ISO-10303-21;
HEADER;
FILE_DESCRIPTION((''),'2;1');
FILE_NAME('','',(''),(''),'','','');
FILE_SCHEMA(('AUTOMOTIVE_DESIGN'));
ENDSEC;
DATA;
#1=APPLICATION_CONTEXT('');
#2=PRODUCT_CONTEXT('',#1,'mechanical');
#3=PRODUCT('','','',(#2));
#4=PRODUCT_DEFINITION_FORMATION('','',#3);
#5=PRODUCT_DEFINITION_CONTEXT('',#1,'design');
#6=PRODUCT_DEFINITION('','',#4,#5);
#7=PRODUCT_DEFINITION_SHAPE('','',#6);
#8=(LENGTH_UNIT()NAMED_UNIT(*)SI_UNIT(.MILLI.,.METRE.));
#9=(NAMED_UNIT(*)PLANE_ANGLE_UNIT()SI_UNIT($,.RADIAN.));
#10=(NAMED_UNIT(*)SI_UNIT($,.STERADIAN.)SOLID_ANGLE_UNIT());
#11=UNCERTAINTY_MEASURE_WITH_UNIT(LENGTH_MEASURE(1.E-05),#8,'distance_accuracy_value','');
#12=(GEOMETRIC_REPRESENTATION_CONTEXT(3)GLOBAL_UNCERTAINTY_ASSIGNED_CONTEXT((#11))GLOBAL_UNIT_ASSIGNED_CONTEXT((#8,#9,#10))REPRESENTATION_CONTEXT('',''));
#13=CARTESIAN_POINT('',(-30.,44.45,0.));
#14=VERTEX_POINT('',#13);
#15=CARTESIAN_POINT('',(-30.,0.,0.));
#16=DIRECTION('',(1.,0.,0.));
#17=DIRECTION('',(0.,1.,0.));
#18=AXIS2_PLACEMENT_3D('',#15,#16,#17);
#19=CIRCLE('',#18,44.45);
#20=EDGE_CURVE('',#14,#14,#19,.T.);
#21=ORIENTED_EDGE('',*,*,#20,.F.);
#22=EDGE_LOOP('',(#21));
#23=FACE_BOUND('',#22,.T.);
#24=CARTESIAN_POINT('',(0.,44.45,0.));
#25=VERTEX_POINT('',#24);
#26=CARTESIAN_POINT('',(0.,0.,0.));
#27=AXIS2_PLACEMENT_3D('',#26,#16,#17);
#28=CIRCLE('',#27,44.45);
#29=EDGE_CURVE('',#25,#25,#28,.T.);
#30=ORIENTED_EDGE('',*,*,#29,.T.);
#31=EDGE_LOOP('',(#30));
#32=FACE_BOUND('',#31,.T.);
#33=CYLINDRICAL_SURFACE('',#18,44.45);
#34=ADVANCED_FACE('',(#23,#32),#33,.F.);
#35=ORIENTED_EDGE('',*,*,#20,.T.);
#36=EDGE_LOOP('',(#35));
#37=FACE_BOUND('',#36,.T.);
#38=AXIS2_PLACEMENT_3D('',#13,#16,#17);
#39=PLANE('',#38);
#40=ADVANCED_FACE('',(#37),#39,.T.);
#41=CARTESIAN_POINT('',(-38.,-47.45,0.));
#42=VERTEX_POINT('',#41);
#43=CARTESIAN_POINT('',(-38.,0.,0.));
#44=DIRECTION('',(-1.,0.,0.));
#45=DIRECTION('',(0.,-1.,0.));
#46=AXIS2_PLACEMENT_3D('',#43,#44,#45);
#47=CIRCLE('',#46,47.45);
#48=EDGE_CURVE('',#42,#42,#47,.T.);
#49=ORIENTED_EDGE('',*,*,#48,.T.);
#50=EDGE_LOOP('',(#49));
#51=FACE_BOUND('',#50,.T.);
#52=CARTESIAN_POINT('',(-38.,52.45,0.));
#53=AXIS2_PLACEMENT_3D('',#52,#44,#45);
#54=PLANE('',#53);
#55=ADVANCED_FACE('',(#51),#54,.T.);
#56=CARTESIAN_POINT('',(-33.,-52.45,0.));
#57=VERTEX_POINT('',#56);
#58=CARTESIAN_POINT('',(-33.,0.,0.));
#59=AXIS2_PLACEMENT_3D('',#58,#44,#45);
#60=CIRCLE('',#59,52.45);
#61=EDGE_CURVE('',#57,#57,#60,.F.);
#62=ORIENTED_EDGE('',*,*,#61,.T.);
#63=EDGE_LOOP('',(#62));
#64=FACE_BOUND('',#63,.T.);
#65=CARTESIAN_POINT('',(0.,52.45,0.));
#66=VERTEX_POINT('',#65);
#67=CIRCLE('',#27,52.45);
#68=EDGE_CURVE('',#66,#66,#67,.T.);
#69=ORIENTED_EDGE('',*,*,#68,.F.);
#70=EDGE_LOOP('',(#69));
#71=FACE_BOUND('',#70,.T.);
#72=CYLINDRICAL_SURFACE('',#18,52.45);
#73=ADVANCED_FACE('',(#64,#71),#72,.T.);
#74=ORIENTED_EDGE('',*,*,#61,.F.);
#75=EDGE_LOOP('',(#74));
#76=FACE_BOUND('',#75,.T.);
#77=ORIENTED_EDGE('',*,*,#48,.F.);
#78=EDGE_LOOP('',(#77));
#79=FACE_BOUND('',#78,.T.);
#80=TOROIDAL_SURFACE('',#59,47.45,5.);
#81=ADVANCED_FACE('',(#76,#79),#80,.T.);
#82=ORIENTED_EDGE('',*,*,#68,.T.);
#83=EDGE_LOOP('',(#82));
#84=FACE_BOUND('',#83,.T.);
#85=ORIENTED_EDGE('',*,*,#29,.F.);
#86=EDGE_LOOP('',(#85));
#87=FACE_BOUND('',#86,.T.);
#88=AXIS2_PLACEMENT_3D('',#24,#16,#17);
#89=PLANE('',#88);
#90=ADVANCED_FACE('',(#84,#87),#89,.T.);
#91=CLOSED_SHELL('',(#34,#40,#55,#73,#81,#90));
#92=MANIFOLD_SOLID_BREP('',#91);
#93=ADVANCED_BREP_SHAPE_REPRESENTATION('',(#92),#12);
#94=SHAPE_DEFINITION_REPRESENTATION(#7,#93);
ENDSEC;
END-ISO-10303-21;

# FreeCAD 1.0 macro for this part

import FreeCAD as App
import Part
import Sketcher
from FreeCAD import Vector


def edges_at(feature, points):
    """Names of the edges that pass closest to the given points."""
    edges = feature.Shape.Edges
    near = lambda p: min(range(len(edges)), key=lambda i: edges[i].distToShape(Part.Vertex(*p))[0])
    return sorted({f"Edge{near(p) + 1}" for p in points})


def add_polygon(sketch, points):
    """Adds a closed chain of lines whose ends are joined by coincident constraints."""
    first, n = sketch.GeometryCount, len(points)
    for a, b in zip(points, points[1:] + points[:1]):
        sketch.addGeometry(Part.LineSegment(App.Vector(*a, 0), App.Vector(*b, 0)), False)
    for i in range(n):
        sketch.addConstraint(Sketcher.Constraint("Coincident", first + i, 2, first + (i + 1) % n, 1))

doc = App.newDocument("Part")
body = doc.addObject("PartDesign::Body", "Body")

sketch1 = body.newObject("Sketcher::SketchObject", "Sketch")
sketch1.AttachmentSupport = (doc.getObject("XY_Plane"), [""])
sketch1.MapMode = "FlatFace"
add_polygon(sketch1, [(-30, 44), (0, 44), (0, 52), (-38, 52), (-38, 0), (-30, 0)])
sketch1.addConstraint([
    Sketcher.Constraint("Horizontal", 0),
    Sketcher.Constraint("Vertical", 1),
    Sketcher.Constraint("Horizontal", 2),
    Sketcher.Constraint("Vertical", 3),
    Sketcher.Constraint("Horizontal", 4),
    Sketcher.Constraint("Vertical", 5),
    Sketcher.Constraint("PointOnObject", 0, 2, -2),
    Sketcher.Constraint("PointOnObject", 3, 2, -1),
    Sketcher.Constraint("Equal", 4, 1),
    Sketcher.Constraint("DistanceX", 0, 1, 0, 2, 30.0),
    Sketcher.Constraint("DistanceX", 2, 2, 2, 1, 38.0),
    Sketcher.Constraint("DistanceY", 3, 2, 3, 1, 52.45),
])
revolution = body.newObject("PartDesign::Revolution", "Revolution")
revolution.Profile = sketch1
revolution.ReferenceAxis = (sketch1, ["H_Axis"])
revolution.Angle = 360
doc.recompute()

fillet = body.newObject("PartDesign::Fillet", "Fillet")
fillet.Base = (revolution, edges_at(revolution, [(-38, -52.45, 0)]))
fillet.Radius = 5

doc.recompute()
